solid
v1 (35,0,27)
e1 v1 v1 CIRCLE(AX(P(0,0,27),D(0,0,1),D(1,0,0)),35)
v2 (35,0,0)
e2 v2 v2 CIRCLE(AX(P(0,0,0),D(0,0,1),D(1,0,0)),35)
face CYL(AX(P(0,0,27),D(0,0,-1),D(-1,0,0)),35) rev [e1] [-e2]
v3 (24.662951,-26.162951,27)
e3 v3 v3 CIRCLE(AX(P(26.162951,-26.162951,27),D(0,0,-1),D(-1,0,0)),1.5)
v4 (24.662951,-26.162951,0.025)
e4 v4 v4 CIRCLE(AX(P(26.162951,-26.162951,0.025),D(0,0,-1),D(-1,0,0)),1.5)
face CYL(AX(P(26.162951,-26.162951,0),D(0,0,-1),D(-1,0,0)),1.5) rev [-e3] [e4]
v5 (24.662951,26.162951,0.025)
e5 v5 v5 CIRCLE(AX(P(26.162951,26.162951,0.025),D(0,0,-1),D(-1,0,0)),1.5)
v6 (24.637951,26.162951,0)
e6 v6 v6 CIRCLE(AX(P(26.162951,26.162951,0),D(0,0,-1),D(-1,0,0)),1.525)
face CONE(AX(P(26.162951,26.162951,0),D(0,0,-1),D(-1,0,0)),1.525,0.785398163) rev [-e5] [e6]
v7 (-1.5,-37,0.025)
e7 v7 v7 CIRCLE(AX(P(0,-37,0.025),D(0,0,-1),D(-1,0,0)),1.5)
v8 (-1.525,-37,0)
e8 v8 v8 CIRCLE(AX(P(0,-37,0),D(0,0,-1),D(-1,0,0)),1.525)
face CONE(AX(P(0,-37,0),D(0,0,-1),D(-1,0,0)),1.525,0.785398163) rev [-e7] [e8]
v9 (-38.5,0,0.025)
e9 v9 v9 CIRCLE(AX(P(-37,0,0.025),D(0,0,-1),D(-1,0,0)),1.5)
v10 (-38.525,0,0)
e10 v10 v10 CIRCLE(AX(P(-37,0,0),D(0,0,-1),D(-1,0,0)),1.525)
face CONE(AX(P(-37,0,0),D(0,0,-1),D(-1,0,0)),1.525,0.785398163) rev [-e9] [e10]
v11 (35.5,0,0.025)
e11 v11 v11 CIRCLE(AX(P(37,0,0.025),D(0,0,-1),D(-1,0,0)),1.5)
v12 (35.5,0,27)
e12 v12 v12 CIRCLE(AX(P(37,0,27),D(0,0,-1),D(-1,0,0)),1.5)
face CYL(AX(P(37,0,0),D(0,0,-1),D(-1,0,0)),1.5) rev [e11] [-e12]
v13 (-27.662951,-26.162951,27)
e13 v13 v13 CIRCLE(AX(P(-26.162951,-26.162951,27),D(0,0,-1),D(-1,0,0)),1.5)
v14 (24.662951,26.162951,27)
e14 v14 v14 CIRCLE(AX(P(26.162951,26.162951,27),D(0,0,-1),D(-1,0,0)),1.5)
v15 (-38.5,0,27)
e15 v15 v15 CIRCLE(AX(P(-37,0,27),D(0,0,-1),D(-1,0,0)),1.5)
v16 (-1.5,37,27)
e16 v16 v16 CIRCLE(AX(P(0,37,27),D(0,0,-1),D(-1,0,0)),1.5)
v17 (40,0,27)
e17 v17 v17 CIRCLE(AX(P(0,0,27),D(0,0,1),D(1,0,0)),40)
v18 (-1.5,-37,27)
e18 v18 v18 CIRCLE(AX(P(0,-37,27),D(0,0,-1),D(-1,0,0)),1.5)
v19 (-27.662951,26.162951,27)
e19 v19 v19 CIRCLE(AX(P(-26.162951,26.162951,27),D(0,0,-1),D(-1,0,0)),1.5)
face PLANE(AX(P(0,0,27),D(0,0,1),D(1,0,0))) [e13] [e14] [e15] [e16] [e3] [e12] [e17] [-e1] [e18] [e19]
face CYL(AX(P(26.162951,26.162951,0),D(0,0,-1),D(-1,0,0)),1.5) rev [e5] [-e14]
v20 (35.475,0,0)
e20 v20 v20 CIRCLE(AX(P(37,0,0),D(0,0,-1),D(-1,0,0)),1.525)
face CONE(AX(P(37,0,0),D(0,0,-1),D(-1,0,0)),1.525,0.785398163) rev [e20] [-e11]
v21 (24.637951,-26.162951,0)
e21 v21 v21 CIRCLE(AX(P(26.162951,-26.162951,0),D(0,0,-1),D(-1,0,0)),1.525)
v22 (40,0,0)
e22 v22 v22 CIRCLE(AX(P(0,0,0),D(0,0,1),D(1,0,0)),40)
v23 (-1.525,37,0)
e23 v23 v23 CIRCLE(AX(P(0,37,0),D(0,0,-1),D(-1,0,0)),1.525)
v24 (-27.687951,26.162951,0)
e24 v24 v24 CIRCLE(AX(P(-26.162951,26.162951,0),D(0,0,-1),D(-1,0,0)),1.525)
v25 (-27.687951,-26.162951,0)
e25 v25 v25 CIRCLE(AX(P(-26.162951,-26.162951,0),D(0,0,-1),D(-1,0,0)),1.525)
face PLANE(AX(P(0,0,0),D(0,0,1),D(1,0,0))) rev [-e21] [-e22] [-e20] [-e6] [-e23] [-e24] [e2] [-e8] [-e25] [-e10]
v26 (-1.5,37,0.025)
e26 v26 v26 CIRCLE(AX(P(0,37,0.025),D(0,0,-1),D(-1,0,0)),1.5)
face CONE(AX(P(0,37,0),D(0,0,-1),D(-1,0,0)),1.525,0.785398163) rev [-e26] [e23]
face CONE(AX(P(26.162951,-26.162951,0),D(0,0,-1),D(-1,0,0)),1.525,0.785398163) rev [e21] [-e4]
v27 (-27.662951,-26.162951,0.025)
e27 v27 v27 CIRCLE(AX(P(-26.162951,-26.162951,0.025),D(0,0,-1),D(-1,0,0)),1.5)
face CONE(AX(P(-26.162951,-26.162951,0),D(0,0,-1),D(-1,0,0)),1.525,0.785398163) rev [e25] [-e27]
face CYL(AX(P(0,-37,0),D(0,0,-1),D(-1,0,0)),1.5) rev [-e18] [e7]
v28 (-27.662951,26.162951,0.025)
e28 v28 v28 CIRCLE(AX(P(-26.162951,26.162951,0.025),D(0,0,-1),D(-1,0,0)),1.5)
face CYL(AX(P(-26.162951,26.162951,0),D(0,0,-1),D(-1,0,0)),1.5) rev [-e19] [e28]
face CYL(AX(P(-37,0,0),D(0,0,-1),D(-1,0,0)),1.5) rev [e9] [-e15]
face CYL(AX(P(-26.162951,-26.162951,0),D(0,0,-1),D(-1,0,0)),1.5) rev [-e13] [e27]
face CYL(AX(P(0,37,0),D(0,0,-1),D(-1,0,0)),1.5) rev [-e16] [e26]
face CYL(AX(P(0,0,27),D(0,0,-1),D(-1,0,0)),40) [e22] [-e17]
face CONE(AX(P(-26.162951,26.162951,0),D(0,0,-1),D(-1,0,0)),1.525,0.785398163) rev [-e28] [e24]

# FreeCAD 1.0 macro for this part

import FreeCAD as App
import Part
import Sketcher

doc = App.newDocument("Part")
body = doc.addObject("PartDesign::Body", "Body")

sketch1 = body.newObject("Sketcher::SketchObject", "Sketch")
sketch1.AttachmentSupport = (doc.getObject("XY_Plane"), [""])
sketch1.MapMode = "FlatFace"
sketch1.addGeometry([
    Part.Circle(App.Vector(0, 0, 0), App.Vector(0, 0, 1), 40),
    Part.Circle(App.Vector(0, 0, 0), App.Vector(0, 0, 1), 35),
], False)
sketch1.addConstraint([
    Sketcher.Constraint("Coincident", 0, 3, -1, 1),
    Sketcher.Constraint("Coincident", 1, 3, -1, 1),
    Sketcher.Constraint("Diameter", 0, 80.0),
    Sketcher.Constraint("Diameter", 1, 70.0),
])
pad1 = body.newObject("PartDesign::Pad", "Pad")
pad1.Profile = sketch1
pad1.Length = 27

sketch2 = body.newObject("Sketcher::SketchObject", "Sketch001")
sketch2.AttachmentSupport = (doc.getObject("XY_Plane"), [""])
sketch2.MapMode = "FlatFace"
sketch2.addGeometry([
    Part.Circle(App.Vector(0, 37, 0), App.Vector(0, 0, 1), 1.5),
    Part.Circle(App.Vector(-26.2, 26.2, 0), App.Vector(0, 0, 1), 1.5),
    Part.Circle(App.Vector(-37, 0, 0), App.Vector(0, 0, 1), 1.5),
    Part.Circle(App.Vector(26.2, 26.2, 0), App.Vector(0, 0, 1), 1.5),
    Part.Circle(App.Vector(37, 0, 0), App.Vector(0, 0, 1), 1.5),
    Part.Circle(App.Vector(26.2, -26.2, 0), App.Vector(0, 0, 1), 1.5),
    Part.Circle(App.Vector(0, -37, 0), App.Vector(0, 0, 1), 1.5),
    Part.Circle(App.Vector(-26.2, -26.2, 0), App.Vector(0, 0, 1), 1.5),
], False)
sketch2.addConstraint([
    Sketcher.Constraint("Equal", 0, 1),
    Sketcher.Constraint("Equal", 1, 2),
    Sketcher.Constraint("Equal", 2, 3),
    Sketcher.Constraint("Equal", 3, 4),
    Sketcher.Constraint("Equal", 4, 5),
    Sketcher.Constraint("Equal", 5, 6),
    Sketcher.Constraint("Equal", 6, 7),
    Sketcher.Constraint("Symmetric", 2, 3, 4, 3, -1, 1),
    Sketcher.Constraint("Symmetric", 1, 3, 5, 3, -1, 1),
    Sketcher.Constraint("Symmetric", 0, 3, 6, 3, -1, 1),
    Sketcher.Constraint("Symmetric", 3, 3, 7, 3, -1, 1),
    Sketcher.Constraint("Symmetric", 1, 3, 3, 3, -2),
    Sketcher.Constraint("PointOnObject", 0, 3, -2),
    Sketcher.Constraint("PointOnObject", 2, 3, -1),
    Sketcher.Constraint("Diameter", 0, 3.0),
    Sketcher.Constraint("DistanceY", -1, 1, 0, 3, 37.0),
    Sketcher.Constraint("DistanceX", 2, 3, -1, 1, 37.0),
    Sketcher.Constraint("DistanceX", 1, 3, 3, 3, 52.325902),
    Sketcher.Constraint("DistanceY", 5, 3, 3, 3, 52.325902),
])
doc.recompute()
hole = body.newObject("PartDesign::Hole", "Hole")
hole.Profile = sketch2
hole.ThreadType = "None"
hole.Diameter = 3
hole.DepthType = "ThroughAll"
hole.HoleCutType = "Countersink"
hole.HoleCutDiameter = 3.05
hole.HoleCutCountersinkAngle = 90
hole.Reversed = True

doc.recompute()
